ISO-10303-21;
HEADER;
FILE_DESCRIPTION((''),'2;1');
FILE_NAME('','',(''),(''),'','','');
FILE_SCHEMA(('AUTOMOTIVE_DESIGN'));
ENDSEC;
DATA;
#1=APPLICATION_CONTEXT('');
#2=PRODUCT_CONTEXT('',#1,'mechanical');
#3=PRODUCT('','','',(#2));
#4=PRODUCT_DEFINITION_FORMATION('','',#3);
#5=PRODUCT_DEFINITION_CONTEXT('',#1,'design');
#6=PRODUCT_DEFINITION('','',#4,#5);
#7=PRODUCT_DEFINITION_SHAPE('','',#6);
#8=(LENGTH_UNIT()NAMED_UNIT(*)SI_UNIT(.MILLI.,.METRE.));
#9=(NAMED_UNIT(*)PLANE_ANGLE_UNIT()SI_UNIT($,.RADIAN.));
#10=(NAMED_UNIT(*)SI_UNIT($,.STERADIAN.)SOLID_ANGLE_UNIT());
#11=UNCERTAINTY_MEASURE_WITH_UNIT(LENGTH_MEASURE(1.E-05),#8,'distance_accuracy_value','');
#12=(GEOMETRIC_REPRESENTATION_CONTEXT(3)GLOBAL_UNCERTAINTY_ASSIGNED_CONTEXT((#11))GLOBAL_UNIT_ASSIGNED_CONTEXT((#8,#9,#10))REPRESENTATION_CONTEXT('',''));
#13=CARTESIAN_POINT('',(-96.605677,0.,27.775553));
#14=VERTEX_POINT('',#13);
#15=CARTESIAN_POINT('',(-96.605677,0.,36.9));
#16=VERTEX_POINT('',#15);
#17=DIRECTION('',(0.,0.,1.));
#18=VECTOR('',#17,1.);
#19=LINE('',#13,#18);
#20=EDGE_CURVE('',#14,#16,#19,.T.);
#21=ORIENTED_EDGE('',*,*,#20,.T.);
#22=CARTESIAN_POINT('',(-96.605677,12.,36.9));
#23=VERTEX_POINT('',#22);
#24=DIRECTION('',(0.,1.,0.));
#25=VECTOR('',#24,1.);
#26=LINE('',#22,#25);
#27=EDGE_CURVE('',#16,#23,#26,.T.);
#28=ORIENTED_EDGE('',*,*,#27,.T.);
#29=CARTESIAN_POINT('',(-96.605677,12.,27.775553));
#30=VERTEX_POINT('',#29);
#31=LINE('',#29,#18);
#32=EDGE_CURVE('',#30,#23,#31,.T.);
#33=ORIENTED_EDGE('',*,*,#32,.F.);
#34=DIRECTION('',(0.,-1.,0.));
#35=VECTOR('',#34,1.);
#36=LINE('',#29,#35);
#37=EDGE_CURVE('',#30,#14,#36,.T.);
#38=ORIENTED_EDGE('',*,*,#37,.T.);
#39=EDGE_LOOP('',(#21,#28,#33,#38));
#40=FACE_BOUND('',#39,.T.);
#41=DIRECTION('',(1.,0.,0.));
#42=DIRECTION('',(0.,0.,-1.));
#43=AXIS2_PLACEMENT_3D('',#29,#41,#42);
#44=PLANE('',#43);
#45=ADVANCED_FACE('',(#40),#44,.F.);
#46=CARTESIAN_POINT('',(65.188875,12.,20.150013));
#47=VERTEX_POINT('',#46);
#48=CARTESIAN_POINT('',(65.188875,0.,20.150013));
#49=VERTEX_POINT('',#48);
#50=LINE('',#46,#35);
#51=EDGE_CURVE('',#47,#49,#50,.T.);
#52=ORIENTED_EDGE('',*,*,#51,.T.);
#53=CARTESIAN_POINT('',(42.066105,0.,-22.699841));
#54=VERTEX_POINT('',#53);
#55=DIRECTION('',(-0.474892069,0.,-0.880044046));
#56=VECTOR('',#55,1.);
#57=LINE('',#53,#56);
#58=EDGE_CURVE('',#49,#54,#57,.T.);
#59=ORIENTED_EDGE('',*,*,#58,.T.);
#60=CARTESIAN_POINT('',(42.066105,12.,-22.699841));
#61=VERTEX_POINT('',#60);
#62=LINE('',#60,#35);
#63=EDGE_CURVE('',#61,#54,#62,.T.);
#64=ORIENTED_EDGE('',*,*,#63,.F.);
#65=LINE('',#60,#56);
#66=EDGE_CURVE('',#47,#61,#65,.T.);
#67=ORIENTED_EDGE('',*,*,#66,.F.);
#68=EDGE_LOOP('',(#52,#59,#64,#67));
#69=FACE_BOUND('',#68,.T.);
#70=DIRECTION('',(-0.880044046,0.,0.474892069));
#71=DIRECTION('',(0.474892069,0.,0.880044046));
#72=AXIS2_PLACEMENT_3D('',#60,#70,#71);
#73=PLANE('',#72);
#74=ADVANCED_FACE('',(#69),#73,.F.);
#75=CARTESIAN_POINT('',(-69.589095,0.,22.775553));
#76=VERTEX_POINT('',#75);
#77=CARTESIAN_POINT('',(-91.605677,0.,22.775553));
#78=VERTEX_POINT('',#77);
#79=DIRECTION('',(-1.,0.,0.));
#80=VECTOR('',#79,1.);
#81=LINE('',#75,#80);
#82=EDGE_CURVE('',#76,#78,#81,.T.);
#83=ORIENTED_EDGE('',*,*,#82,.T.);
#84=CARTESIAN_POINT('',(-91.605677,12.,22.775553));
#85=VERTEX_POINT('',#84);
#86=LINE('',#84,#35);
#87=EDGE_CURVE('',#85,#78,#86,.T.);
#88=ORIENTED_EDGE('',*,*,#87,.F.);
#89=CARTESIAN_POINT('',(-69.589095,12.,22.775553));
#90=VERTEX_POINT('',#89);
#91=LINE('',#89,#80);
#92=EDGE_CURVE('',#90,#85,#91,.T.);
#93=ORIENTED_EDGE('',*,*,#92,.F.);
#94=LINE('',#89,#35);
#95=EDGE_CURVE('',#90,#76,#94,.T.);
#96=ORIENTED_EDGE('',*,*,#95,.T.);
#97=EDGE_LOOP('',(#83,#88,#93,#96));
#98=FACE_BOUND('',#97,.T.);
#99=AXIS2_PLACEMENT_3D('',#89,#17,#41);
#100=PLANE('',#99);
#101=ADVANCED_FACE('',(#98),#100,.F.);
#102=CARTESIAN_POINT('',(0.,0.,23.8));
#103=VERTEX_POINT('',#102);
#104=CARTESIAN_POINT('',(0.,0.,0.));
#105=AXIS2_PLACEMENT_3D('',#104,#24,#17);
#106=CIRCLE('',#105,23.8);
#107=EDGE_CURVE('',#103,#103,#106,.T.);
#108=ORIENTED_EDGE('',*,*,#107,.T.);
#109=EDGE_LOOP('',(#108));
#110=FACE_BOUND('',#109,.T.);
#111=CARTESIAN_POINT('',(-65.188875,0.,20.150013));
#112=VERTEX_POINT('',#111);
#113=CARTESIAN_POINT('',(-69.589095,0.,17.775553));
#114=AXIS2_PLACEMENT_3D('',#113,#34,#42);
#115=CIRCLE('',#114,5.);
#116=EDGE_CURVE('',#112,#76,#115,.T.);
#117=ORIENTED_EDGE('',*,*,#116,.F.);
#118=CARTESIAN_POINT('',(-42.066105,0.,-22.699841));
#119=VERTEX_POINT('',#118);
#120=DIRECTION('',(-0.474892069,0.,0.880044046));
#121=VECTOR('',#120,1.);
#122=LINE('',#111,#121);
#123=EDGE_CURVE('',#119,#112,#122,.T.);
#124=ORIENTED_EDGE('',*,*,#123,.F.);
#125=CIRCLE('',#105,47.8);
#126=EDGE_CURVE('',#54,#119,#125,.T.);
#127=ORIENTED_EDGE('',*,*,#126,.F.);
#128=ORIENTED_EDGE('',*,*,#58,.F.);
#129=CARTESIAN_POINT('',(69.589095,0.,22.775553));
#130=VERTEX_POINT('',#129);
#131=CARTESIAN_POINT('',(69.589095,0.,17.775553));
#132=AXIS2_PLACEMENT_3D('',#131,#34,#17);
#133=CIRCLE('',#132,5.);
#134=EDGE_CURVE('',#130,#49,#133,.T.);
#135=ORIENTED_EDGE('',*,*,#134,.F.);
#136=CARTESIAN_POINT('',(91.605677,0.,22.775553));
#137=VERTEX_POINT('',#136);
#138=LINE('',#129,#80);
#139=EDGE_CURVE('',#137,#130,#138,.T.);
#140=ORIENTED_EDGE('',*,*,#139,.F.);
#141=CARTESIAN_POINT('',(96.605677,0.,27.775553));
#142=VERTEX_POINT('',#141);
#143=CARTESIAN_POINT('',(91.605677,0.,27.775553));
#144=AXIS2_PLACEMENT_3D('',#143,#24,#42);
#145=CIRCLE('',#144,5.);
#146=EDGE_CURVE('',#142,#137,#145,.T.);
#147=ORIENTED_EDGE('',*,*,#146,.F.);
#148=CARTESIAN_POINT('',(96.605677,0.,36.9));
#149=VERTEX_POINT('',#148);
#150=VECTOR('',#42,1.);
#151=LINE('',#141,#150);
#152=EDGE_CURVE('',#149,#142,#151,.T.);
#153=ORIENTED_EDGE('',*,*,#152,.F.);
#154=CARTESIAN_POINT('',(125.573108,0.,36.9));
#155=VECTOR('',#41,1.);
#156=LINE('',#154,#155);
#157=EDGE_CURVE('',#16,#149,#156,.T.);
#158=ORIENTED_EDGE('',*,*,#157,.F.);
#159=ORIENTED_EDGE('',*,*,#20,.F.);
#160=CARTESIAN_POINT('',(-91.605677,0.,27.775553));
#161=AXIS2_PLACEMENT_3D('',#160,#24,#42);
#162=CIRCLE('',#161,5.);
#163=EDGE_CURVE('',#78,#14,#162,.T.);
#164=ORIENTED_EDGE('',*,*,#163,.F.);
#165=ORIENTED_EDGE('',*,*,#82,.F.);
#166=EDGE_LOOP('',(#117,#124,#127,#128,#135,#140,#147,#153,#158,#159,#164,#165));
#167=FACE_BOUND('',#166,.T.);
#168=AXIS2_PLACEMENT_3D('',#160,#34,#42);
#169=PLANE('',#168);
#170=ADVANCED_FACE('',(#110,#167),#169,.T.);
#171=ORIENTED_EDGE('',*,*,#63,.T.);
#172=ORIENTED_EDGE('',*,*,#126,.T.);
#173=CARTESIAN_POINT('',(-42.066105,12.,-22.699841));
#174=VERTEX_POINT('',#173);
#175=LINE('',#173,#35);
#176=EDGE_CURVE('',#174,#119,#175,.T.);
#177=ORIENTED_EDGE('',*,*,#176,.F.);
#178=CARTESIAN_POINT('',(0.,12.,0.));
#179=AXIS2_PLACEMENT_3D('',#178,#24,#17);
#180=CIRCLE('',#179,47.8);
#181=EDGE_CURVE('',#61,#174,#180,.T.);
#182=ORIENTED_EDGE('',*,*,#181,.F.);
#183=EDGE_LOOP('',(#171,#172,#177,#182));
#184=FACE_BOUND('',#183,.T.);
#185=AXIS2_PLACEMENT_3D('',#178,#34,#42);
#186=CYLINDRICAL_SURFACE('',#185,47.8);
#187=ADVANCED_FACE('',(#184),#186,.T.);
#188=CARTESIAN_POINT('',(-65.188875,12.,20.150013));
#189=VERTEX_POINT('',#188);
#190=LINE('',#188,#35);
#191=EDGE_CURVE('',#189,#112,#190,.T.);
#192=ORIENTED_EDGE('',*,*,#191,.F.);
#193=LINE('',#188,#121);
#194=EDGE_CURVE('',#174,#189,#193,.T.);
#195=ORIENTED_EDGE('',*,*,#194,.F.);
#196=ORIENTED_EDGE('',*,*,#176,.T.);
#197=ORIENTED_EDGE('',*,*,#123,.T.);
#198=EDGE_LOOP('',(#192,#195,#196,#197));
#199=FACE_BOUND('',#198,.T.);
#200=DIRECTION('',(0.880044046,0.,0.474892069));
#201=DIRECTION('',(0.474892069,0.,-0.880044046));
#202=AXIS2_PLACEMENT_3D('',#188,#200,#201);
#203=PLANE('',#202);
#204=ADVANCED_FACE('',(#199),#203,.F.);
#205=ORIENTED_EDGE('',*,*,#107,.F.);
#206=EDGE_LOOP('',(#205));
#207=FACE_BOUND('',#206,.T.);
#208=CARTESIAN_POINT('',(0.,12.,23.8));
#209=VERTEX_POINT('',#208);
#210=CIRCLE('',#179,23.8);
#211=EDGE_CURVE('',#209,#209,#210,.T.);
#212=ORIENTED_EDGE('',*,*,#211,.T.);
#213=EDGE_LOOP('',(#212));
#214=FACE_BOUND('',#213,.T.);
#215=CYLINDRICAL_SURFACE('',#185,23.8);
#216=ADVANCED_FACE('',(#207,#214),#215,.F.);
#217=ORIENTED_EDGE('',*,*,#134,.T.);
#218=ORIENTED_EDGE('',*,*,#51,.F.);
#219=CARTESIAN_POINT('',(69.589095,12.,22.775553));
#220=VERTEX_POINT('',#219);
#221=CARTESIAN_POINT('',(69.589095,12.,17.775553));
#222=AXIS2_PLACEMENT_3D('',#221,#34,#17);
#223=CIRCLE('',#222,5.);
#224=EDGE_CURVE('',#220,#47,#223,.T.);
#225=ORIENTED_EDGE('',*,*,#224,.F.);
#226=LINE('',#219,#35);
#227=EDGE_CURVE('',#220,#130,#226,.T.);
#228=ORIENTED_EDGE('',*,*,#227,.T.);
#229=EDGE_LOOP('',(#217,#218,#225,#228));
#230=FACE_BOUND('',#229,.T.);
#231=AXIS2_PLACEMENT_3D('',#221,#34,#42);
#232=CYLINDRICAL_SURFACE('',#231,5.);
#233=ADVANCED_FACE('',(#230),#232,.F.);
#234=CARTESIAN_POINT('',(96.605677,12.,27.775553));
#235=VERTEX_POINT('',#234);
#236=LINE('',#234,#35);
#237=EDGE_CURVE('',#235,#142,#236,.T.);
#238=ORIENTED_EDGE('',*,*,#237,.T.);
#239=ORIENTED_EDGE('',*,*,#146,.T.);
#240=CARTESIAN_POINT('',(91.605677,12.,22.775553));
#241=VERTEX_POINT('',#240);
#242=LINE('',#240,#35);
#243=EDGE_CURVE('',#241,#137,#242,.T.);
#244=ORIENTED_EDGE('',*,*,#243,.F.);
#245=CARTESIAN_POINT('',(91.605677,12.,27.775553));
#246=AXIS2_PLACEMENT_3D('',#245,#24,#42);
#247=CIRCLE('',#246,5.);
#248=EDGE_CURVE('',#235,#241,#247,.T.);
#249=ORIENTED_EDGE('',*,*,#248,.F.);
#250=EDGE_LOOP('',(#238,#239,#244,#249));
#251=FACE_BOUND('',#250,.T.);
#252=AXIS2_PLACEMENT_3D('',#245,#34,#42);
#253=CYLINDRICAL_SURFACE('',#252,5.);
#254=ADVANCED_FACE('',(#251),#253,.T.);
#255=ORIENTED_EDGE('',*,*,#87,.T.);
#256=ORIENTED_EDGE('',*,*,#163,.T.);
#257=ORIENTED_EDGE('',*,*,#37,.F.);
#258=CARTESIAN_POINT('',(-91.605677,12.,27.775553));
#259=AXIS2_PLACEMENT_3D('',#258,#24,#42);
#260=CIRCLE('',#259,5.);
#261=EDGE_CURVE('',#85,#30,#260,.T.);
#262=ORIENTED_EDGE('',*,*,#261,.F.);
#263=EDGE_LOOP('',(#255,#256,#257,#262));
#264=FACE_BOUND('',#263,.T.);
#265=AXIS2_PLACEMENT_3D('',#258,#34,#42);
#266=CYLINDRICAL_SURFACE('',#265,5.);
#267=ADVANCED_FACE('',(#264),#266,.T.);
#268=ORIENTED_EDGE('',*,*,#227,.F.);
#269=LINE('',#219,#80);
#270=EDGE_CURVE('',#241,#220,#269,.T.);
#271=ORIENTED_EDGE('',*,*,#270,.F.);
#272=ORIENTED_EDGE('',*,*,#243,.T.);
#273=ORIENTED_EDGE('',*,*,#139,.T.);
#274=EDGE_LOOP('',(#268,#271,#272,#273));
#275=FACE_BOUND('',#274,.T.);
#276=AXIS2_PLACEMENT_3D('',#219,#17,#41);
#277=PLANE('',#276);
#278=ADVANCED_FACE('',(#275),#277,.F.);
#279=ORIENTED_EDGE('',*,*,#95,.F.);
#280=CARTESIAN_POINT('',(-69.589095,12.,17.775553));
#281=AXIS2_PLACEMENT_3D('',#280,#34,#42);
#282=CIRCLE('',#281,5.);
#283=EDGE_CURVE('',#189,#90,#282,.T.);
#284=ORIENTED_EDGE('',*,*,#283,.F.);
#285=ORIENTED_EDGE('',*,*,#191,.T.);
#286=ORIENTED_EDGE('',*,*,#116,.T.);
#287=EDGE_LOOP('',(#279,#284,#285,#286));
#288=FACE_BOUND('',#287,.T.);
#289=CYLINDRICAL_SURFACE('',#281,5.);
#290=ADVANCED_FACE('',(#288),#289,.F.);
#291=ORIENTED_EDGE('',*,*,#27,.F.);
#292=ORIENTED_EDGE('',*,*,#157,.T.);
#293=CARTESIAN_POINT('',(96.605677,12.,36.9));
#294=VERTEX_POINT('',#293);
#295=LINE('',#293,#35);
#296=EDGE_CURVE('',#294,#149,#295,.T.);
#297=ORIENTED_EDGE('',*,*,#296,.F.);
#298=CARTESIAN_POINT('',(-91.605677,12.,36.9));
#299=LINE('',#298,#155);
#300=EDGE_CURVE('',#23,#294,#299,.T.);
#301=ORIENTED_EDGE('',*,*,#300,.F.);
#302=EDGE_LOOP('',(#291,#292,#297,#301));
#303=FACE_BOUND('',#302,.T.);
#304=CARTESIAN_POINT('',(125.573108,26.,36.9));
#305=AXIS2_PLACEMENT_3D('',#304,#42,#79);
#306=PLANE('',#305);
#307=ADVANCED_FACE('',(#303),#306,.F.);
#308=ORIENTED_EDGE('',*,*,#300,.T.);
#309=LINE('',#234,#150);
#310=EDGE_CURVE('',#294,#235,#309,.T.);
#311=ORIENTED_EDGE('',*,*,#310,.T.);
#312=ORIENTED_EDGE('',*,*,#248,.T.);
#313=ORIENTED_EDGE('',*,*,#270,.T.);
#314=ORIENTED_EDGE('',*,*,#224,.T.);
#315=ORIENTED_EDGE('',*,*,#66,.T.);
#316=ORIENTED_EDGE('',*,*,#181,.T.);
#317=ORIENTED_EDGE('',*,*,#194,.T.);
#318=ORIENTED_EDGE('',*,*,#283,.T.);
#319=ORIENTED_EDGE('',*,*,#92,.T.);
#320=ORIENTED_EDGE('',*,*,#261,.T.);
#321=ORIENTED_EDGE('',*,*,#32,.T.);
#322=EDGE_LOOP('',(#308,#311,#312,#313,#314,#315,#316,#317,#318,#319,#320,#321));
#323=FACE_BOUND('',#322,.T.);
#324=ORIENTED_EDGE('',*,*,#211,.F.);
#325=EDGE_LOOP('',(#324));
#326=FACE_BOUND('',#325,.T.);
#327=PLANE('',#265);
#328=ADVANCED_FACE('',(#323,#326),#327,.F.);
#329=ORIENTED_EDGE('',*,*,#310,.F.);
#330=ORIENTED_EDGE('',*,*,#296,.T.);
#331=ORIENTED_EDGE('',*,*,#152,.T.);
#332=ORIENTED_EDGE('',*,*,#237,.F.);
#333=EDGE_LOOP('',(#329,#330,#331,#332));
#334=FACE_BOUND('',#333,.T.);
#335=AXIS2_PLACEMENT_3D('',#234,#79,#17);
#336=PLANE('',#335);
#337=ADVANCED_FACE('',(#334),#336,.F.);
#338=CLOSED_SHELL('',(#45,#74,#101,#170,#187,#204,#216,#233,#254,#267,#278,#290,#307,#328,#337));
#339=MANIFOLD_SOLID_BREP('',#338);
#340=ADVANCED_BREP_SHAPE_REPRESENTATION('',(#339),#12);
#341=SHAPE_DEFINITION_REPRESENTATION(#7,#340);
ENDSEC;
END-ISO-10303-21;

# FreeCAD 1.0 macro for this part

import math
import FreeCAD as App
import Part
import Sketcher
from FreeCAD import Vector
Q = App.Units.Quantity

doc = App.newDocument("Part")
body = doc.addObject("PartDesign::Body", "Body")

# Sketch on XZ plane
sketch1 = doc.addObject("Sketcher::SketchObject", "Sketch")
body.addObject(sketch1)
sketch1.AttachmentSupport = (doc.XZ_Plane, [""])
sketch1.MapMode = "FlatFace"
sketch1.addGeometry(Part.LineSegment(Vector(-96.605677, 27.775553, 0), Vector(-96.605677, 39.8, 0)), False)
sketch1.addGeometry(Part.LineSegment(Vector(-96.605677, 39.8, 0), Vector(96.605677, 39.8, 0)), False)
sketch1.addGeometry(Part.LineSegment(Vector(96.605677, 39.8, 0), Vector(96.605677, 27.775553, 0)), False)
sketch1.addGeometry(Part.ArcOfCircle(Part.Circle(Vector(91.605677, 27.775553, 0), Vector(0, 0, 1), 5), math.radians(-90), math.radians(0)), False)
sketch1.addGeometry(Part.LineSegment(Vector(91.605677, 22.775553, 0), Vector(69.589095, 22.775553, 0)), False)
sketch1.addGeometry(Part.ArcOfCircle(Part.Circle(Vector(69.589095, 17.775553, 0), Vector(0, 0, 1), 5), math.radians(90), math.radians(151.647677)), False)
sketch1.addGeometry(Part.LineSegment(Vector(65.188875, 20.150013, 0), Vector(42.066105, -22.699841, 0)), False)
sketch1.addGeometry(Part.ArcOfCircle(Part.Circle(Vector(0, 0, 0), Vector(0, 0, 1), 47.8), math.radians(-151.647677), math.radians(-28.352323)), False)
sketch1.addGeometry(Part.LineSegment(Vector(-42.066105, -22.699841, 0), Vector(-65.188875, 20.150013, 0)), False)
sketch1.addGeometry(Part.ArcOfCircle(Part.Circle(Vector(-69.589095, 17.775553, 0), Vector(0, 0, 1), 5), math.radians(28.352323), math.radians(90)), False)
sketch1.addGeometry(Part.LineSegment(Vector(-69.589095, 22.775553, 0), Vector(-91.605677, 22.775553, 0)), False)
sketch1.addGeometry(Part.ArcOfCircle(Part.Circle(Vector(-91.605677, 27.775553, 0), Vector(0, 0, 1), 5), math.radians(-180), math.radians(-90)), False)
sketch1.addGeometry(Part.Circle(Vector(0, 0, 0), Vector(0, 0, 1), 23.8), False)
sketch1.addConstraint(Sketcher.Constraint("Coincident", 0, 2, 1, 1))
sketch1.addConstraint(Sketcher.Constraint("Coincident", 1, 2, 2, 1))
sketch1.addConstraint(Sketcher.Constraint("Tangent", 2, 2, 3, 2))
sketch1.addConstraint(Sketcher.Constraint("Tangent", 3, 1, 4, 1))
sketch1.addConstraint(Sketcher.Constraint("Tangent", 4, 2, 5, 1))
sketch1.addConstraint(Sketcher.Constraint("Tangent", 5, 2, 6, 1))
sketch1.addConstraint(Sketcher.Constraint("Tangent", 6, 2, 7, 2))
sketch1.addConstraint(Sketcher.Constraint("Tangent", 7, 1, 8, 1))
sketch1.addConstraint(Sketcher.Constraint("Tangent", 8, 2, 9, 1))
sketch1.addConstraint(Sketcher.Constraint("Tangent", 9, 2, 10, 1))
sketch1.addConstraint(Sketcher.Constraint("Tangent", 10, 2, 11, 2))
sketch1.addConstraint(Sketcher.Constraint("Tangent", 11, 1, 0, 1))
sketch1.addConstraint(Sketcher.Constraint("Vertical", 0))
sketch1.addConstraint(Sketcher.Constraint("Horizontal", 1))
sketch1.addConstraint(Sketcher.Constraint("Vertical", 2))
sketch1.addConstraint(Sketcher.Constraint("Horizontal", 4))
sketch1.addConstraint(Sketcher.Constraint("Horizontal", 10))
sketch1.addConstraint(Sketcher.Constraint("Coincident", 7, 3, -1, 1))
sketch1.addConstraint(Sketcher.Constraint("Coincident", 12, 3, -1, 1))
sketch1.addConstraint(Sketcher.Constraint("Equal", 3, 5))
sketch1.addConstraint(Sketcher.Constraint("Equal", 5, 9))
sketch1.addConstraint(Sketcher.Constraint("Equal", 9, 11))
sketch1.addConstraint(Sketcher.Constraint("Symmetric", 5, 3, 9, 3, -2))
sketch1.addConstraint(Sketcher.Constraint("Equal", 4, 10))
sketch1.addConstraint(Sketcher.Constraint("Radius", 3, Q("5 mm")))
sketch1.addConstraint(Sketcher.Constraint("Diameter", 12, Q("47.6 mm")))
sketch1.addConstraint(Sketcher.Constraint("Radius", 7, Q("47.8 mm")))
sketch1.addConstraint(Sketcher.Constraint("DistanceY", -1, 1, 0, 2, Q("39.8 mm")))
sketch1.addConstraint(Sketcher.Constraint("DistanceX", 4, 2, 4, 1, Q("22.016582 mm")))
sketch1.addConstraint(Sketcher.Constraint("DistanceX", 5, 2, 3, 1, Q("26.416802 mm")))
sketch1.addConstraint(Sketcher.Constraint("Distance", 6, Q("48.690579 mm")))
pad1 = doc.addObject("PartDesign::Pad", "Pad")
body.addObject(pad1)
pad1.Profile = sketch1
pad1.Length = 12
pad1.Reversed = True

# Sketch on XZ plane
sketch2 = doc.addObject("Sketcher::SketchObject", "Sketch001")
body.addObject(sketch2)
sketch2.AttachmentSupport = (doc.XZ_Plane, [""])
sketch2.MapMode = "FlatFace"
sketch2.addGeometry(Part.LineSegment(Vector(-142.965615, 93.255455, 0), Vector(-142.965615, 36.9, 0)), False)
sketch2.addGeometry(Part.LineSegment(Vector(-142.965615, 36.9, 0), Vector(125.573108, 36.9, 0)), False)
sketch2.addGeometry(Part.LineSegment(Vector(125.573108, 36.9, 0), Vector(125.573108, 93.255455, 0)), False)
sketch2.addGeometry(Part.LineSegment(Vector(125.573108, 93.255455, 0), Vector(-142.965615, 93.255455, 0)), False)
sketch2.addConstraint(Sketcher.Constraint("Coincident", 0, 2, 1, 1))
sketch2.addConstraint(Sketcher.Constraint("Coincident", 1, 2, 2, 1))
sketch2.addConstraint(Sketcher.Constraint("Coincident", 2, 2, 3, 1))
sketch2.addConstraint(Sketcher.Constraint("Coincident", 3, 2, 0, 1))
sketch2.addConstraint(Sketcher.Constraint("Vertical", 0))
sketch2.addConstraint(Sketcher.Constraint("Horizontal", 1))
sketch2.addConstraint(Sketcher.Constraint("Vertical", 2))
sketch2.addConstraint(Sketcher.Constraint("Horizontal", 3))
sketch2.addConstraint(Sketcher.Constraint("DistanceY", -1, 1, 0, 2, Q("36.9 mm")))
sketch2.addConstraint(Sketcher.Constraint("DistanceX", 1, 1, 1, 2, Q("268.538724 mm")))
sketch2.addConstraint(Sketcher.Constraint("DistanceY", 0, 2, 0, 1, Q("56.355455 mm")))
sketch2.addConstraint(Sketcher.Constraint("DistanceX", -1, 1, 1, 2, Q("125.573108 mm")))
pocket1 = doc.addObject("PartDesign::Pocket", "Pocket")
body.addObject(pocket1)
pocket1.Profile = sketch2
pocket1.Length = 26

doc.recompute()
